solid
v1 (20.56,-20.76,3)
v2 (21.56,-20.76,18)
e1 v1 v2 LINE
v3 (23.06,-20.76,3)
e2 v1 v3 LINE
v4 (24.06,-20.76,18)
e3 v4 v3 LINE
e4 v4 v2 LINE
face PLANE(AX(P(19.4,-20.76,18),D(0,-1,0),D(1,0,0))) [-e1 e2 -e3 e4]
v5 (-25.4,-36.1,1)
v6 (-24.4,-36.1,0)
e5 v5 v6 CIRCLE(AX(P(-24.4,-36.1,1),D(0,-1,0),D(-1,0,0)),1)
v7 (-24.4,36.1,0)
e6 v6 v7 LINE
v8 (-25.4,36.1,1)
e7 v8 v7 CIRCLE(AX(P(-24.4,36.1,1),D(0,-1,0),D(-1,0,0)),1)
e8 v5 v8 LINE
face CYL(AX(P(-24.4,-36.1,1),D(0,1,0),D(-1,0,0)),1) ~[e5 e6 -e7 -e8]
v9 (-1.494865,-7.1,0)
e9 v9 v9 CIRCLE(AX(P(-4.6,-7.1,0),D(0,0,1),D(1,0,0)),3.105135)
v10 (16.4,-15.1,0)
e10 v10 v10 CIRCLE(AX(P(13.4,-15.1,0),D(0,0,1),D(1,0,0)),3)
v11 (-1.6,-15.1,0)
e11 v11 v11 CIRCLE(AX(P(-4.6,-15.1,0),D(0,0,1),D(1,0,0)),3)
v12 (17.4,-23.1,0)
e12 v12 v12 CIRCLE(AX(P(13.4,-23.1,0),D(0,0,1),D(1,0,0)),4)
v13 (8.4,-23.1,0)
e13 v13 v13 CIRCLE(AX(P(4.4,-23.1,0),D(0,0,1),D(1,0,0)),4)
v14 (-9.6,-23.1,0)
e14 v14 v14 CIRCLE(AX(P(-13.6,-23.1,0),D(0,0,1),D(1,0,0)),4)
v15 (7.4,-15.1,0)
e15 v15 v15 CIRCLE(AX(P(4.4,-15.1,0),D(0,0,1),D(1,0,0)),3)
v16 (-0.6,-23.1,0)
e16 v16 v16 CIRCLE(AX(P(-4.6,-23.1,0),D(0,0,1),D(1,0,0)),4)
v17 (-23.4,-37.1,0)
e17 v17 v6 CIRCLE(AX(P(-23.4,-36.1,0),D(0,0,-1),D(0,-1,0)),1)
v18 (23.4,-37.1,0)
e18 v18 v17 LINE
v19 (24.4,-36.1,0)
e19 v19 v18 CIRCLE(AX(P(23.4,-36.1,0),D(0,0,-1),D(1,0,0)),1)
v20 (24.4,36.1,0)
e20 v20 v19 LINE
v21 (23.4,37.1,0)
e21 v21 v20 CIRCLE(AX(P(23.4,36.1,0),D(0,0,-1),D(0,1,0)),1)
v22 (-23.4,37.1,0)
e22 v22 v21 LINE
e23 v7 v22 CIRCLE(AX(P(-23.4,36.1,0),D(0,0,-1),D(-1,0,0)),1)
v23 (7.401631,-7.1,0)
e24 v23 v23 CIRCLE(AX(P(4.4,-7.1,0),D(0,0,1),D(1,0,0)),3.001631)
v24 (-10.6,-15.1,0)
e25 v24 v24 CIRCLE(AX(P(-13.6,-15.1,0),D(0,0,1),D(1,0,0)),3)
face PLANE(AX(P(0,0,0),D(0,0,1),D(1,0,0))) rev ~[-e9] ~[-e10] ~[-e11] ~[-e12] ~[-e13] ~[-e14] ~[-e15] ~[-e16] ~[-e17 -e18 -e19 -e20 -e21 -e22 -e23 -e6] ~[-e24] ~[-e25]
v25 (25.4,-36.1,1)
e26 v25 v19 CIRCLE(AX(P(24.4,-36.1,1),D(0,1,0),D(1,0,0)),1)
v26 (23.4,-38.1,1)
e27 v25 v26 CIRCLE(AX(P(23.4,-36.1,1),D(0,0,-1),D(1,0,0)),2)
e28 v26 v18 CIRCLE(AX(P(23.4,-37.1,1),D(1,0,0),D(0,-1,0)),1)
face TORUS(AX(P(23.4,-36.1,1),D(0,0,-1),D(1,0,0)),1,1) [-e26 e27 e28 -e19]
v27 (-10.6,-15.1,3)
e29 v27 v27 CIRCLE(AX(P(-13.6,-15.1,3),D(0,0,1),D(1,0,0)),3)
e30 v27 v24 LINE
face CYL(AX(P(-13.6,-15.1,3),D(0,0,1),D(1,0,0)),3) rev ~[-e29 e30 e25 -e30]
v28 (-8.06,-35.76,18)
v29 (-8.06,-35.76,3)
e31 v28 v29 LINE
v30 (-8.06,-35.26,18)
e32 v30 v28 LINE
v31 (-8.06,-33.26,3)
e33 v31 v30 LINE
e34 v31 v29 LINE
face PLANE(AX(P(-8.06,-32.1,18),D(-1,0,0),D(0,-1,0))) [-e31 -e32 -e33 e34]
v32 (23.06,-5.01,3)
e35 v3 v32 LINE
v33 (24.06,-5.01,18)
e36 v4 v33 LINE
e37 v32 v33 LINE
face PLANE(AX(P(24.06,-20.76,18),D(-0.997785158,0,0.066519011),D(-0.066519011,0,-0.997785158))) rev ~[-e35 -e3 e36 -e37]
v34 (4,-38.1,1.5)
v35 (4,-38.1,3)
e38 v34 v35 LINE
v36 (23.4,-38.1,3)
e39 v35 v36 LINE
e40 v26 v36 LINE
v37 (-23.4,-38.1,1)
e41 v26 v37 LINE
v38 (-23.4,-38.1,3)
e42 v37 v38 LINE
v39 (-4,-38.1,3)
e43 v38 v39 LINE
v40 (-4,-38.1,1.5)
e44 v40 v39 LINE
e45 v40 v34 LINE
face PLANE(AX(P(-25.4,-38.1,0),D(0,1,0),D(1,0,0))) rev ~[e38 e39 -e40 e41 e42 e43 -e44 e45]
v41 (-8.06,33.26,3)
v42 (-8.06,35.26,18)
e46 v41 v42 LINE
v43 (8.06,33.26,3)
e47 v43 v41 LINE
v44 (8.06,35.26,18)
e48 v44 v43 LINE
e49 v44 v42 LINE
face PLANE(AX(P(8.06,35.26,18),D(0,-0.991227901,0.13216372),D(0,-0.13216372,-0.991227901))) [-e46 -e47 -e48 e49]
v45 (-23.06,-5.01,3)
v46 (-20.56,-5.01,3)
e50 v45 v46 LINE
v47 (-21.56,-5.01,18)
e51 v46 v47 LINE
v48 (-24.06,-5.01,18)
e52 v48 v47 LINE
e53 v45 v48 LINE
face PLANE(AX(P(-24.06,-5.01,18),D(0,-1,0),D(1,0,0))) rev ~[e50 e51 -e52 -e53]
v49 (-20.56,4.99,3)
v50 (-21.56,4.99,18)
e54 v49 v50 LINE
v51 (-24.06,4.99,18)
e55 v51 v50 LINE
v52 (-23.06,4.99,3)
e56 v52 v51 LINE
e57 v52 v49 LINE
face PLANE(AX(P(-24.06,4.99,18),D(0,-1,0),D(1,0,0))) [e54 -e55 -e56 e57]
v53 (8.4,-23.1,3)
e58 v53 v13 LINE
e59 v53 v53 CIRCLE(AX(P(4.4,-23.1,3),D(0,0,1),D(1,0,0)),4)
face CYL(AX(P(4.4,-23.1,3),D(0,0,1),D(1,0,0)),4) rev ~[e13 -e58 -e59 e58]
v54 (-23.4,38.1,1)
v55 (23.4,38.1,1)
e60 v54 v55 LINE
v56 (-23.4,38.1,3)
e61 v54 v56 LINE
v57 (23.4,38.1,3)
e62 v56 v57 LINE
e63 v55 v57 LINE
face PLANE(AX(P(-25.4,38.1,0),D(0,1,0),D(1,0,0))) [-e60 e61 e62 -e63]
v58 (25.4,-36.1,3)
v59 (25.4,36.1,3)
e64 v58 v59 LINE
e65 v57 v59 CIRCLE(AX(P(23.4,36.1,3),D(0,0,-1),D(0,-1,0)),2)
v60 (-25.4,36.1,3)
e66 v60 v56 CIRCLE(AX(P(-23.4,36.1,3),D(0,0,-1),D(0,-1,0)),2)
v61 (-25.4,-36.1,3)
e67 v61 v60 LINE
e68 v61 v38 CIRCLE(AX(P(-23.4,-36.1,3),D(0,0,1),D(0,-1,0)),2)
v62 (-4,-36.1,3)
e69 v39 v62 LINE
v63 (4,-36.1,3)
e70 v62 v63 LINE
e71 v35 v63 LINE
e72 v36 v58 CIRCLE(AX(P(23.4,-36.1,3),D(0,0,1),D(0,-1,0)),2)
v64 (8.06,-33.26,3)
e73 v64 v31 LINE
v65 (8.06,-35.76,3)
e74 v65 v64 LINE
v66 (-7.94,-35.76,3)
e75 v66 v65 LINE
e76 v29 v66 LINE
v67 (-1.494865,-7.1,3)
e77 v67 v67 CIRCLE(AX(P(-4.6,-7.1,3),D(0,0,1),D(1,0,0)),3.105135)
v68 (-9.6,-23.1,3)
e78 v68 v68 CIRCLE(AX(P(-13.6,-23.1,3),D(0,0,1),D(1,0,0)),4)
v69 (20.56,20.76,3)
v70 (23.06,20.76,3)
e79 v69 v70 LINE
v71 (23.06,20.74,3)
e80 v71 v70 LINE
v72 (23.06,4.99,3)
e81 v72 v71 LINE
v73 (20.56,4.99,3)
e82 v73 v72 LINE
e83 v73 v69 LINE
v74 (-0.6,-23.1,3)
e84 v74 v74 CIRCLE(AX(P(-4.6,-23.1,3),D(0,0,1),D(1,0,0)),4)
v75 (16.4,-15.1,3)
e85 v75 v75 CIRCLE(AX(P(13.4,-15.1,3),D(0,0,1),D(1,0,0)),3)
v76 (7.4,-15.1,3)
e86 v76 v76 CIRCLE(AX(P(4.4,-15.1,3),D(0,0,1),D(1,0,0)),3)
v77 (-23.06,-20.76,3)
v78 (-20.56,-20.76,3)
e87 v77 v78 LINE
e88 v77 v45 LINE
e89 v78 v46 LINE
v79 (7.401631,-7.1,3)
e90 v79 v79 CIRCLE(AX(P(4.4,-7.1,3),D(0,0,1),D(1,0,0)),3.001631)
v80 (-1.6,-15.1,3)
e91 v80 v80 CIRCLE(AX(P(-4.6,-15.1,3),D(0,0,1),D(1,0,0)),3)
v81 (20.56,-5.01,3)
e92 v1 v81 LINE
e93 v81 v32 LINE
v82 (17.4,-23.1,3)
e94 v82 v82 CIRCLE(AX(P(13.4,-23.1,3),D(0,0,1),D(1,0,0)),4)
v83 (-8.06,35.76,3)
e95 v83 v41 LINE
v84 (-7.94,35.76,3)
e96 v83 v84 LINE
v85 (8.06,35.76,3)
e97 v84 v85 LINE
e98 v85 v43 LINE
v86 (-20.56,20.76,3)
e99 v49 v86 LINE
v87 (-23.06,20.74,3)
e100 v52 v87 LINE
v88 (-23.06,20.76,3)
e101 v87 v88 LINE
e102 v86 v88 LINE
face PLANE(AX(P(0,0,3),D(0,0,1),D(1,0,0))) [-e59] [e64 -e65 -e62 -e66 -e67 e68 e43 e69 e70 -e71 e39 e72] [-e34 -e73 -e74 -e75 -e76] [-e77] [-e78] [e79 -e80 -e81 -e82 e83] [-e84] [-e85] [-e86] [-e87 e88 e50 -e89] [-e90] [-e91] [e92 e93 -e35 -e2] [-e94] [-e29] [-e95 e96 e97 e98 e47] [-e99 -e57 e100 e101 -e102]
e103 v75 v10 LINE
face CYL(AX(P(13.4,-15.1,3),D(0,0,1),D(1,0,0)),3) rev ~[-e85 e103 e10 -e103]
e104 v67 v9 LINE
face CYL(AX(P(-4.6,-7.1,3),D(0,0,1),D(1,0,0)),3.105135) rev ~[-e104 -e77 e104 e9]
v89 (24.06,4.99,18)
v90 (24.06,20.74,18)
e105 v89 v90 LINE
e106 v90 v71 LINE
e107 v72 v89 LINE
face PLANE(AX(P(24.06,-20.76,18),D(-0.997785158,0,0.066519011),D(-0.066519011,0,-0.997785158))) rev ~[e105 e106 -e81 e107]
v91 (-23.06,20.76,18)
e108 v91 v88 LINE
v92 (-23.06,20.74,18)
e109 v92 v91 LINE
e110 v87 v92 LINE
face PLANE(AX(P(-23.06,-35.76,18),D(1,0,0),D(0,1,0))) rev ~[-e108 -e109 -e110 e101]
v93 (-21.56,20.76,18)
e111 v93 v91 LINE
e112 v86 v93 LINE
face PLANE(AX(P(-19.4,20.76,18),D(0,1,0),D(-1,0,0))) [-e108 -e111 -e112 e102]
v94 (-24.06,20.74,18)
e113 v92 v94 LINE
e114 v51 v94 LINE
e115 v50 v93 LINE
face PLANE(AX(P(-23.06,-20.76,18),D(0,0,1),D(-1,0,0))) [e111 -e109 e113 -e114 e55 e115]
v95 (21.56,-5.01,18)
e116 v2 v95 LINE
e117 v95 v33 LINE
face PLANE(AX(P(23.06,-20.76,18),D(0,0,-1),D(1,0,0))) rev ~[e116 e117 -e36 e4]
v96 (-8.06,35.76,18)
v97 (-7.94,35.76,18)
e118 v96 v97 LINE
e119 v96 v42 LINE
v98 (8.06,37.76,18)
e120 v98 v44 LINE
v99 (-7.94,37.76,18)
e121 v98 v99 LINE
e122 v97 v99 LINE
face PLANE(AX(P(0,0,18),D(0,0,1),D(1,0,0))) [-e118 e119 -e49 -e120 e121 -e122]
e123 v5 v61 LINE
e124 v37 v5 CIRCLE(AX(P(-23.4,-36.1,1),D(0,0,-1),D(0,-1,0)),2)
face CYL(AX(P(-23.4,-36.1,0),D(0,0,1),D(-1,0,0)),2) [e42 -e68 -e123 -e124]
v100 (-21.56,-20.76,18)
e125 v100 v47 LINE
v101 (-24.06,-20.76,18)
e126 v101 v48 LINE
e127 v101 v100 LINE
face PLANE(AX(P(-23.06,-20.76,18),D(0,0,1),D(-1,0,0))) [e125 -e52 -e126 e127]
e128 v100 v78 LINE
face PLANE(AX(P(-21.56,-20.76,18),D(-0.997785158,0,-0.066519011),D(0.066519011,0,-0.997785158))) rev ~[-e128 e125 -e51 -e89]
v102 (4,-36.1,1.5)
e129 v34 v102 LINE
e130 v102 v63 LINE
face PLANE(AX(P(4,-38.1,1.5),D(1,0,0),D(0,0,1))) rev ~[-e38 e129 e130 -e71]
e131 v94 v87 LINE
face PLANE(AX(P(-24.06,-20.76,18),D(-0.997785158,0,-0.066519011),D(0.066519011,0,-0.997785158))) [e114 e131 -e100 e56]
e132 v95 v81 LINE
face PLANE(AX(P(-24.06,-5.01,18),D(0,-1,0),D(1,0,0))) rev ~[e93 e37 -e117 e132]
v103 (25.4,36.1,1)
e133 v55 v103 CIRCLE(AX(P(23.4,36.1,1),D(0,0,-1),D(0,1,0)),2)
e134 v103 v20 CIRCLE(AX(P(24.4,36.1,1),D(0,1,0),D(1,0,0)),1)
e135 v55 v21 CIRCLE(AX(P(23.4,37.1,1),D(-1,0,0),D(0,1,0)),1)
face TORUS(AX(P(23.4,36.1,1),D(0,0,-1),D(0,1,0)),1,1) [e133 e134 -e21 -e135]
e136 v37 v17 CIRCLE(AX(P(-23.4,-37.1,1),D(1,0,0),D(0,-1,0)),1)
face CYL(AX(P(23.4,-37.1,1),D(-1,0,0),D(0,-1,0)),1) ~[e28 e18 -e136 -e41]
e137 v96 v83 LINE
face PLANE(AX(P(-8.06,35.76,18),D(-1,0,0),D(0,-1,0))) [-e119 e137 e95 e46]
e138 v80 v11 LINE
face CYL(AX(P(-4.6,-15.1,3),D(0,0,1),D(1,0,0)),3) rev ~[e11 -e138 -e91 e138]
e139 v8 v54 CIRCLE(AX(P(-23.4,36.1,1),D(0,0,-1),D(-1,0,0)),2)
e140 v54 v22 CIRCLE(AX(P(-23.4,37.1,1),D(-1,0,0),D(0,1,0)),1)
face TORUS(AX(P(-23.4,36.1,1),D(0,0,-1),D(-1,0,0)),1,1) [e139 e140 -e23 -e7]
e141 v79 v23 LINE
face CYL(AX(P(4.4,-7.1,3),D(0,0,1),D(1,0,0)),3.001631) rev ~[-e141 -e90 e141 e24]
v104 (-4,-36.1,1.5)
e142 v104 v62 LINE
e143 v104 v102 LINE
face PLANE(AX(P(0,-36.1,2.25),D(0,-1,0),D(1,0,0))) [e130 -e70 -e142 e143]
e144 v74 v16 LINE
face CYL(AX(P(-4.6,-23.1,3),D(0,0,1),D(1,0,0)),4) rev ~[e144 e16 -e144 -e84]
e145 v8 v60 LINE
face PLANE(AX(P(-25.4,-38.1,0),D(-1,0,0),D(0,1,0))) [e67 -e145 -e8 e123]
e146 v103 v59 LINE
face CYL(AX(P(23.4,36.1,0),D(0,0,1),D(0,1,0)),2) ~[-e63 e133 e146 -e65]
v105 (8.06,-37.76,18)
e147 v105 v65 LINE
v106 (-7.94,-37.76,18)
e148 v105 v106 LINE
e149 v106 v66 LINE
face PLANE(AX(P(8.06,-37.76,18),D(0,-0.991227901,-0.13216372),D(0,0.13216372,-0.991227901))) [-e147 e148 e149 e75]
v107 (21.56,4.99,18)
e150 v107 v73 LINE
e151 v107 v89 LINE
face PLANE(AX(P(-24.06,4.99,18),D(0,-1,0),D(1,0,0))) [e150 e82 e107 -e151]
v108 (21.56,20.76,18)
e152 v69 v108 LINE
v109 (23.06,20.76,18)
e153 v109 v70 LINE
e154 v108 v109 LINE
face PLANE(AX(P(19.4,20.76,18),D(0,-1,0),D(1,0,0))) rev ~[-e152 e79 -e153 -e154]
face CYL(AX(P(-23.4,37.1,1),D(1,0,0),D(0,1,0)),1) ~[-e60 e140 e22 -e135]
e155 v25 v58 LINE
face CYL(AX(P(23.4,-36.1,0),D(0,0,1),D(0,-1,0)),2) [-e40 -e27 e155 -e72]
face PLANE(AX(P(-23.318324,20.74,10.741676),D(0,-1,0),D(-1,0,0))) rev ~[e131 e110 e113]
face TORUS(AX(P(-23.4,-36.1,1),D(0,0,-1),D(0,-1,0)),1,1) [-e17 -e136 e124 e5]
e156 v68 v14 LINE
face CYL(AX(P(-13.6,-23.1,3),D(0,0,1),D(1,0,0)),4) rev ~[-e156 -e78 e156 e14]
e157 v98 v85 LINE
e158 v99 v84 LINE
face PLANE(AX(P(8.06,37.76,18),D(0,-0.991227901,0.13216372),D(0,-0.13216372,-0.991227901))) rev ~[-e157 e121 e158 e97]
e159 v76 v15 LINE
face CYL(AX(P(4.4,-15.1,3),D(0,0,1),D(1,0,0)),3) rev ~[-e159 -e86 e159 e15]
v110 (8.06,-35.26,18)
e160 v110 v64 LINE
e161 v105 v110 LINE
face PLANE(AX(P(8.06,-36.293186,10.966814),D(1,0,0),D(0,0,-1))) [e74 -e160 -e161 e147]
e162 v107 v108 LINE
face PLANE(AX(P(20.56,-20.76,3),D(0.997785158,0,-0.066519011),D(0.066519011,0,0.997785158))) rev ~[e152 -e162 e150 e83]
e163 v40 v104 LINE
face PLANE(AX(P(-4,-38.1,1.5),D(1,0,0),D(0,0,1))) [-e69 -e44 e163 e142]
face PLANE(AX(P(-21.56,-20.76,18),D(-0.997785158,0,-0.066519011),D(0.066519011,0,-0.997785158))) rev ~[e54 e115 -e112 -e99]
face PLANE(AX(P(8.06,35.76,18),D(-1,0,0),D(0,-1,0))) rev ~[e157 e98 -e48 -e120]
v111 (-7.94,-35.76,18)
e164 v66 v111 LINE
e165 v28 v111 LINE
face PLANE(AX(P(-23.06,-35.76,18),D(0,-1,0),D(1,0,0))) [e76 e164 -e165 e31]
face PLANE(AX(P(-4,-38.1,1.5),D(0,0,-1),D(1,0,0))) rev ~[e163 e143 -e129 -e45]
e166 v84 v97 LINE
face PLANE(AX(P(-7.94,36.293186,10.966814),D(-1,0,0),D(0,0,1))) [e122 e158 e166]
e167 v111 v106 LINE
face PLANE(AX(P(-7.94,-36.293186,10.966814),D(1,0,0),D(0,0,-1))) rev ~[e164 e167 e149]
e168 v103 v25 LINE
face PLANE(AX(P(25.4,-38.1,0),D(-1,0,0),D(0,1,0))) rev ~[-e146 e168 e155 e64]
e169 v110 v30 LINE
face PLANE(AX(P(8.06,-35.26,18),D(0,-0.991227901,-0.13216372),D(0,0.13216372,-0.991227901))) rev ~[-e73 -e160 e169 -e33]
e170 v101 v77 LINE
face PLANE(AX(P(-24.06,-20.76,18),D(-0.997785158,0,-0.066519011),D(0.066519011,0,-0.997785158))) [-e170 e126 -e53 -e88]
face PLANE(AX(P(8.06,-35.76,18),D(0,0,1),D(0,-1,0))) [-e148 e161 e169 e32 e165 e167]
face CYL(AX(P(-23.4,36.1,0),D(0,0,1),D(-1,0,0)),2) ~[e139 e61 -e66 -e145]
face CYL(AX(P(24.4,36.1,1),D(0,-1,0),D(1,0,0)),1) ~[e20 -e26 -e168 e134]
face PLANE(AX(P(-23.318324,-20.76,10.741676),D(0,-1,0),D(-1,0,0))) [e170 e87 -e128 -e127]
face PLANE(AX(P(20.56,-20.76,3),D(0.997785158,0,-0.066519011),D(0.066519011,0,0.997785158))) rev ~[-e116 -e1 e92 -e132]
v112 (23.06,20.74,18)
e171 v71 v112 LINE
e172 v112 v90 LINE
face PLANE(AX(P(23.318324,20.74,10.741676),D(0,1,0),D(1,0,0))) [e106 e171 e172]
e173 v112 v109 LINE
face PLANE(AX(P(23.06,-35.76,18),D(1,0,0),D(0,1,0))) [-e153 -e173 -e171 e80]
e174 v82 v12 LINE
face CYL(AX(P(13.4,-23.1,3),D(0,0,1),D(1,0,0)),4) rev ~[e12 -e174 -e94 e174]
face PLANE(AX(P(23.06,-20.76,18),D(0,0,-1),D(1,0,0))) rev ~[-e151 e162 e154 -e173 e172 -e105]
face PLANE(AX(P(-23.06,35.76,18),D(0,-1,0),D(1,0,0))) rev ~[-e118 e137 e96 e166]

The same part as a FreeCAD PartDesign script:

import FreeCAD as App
import Part
import Sketcher

V = App.Vector
Q = App.Units.Quantity


def edges_at(feature, points):
    """Names of the edges that pass closest to the given points."""
    edges = feature.Shape.Edges
    near = lambda p: min(range(len(edges)), key=lambda i: edges[i].distToShape(Part.Vertex(*p))[0])
    return sorted({f"Edge{near(p) + 1}" for p in points})

doc = App.newDocument("Part")
body = doc.addObject("PartDesign::Body", "Body")

sketch1 = body.newObject("Sketcher::SketchObject", "Sketch")
sketch1.AttachmentSupport = (doc.getObject("XY_Plane"), [""])
sketch1.MapMode = "FlatFace"
sketch1.addGeometry([
    Part.LineSegment(V(-25, 38, 0), V(-25, -38, 0)),
    Part.LineSegment(V(-25, -38, 0), V(25, -38, 0)),
    Part.LineSegment(V(25, -38, 0), V(25, 38, 0)),
    Part.LineSegment(V(25, 38, 0), V(-25, 38, 0)),
], False)
sketch1.addConstraint([
    Sketcher.Constraint("Coincident", 0, 2, 1, 1),
    Sketcher.Constraint("Coincident", 1, 2, 2, 1),
    Sketcher.Constraint("Coincident", 2, 2, 3, 1),
    Sketcher.Constraint("Coincident", 3, 2, 0, 1),
    Sketcher.Constraint("Vertical", 0),
    Sketcher.Constraint("Horizontal", 1),
    Sketcher.Constraint("Vertical", 2),
    Sketcher.Constraint("Horizontal", 3),
    Sketcher.Constraint("Symmetric", 0, 2, 2, 2, -1, 1),
    Sketcher.Constraint("DistanceX", 1, 1, 1, 2, Q("50.8 mm")),
    Sketcher.Constraint("DistanceY", 0, 2, 0, 1, Q("76.2 mm")),
])
pad1 = body.newObject("PartDesign::Pad", "Pad")
pad1.Profile = sketch1
pad1.Length = 18

sketch2 = body.newObject("Sketcher::SketchObject", "Sketch001")
sketch2.AttachmentSupport = (doc.getObject("XY_Plane"), [""])
sketch2.MapMode = "FlatFace"
sketch2.AttachmentOffset = App.Placement(V(0, 0, 18), App.Rotation())
sketch2.addGeometry([
    Part.LineSegment(V(-25, 38, 0), V(-25, -38, 0)),
    Part.LineSegment(V(-25, -38, 0), V(25, -38, 0)),
    Part.LineSegment(V(25, -38, 0), V(25, 38, 0)),
    Part.LineSegment(V(25, 38, 0), V(-25, 38, 0)),
    Part.LineSegment(V(23, -36, 0), V(-23, -36, 0)),
    Part.LineSegment(V(-23, -36, 0), V(-23, 36, 0)),
    Part.LineSegment(V(-23, 36, 0), V(23, 36, 0)),
    Part.LineSegment(V(23, 36, 0), V(23, -36, 0)),
    Part.LineSegment(V(-19, 32, 0), V(-19, -32, 0)),
    Part.LineSegment(V(-19, -32, 0), V(19, -32, 0)),
    Part.LineSegment(V(19, -32, 0), V(19, 32, 0)),
    Part.LineSegment(V(19, 32, 0), V(-19, 32, 0)),
], False)
sketch2.addConstraint([
    Sketcher.Constraint("Coincident", 0, 2, 1, 1),
    Sketcher.Constraint("Coincident", 1, 2, 2, 1),
    Sketcher.Constraint("Coincident", 2, 2, 3, 1),
    Sketcher.Constraint("Coincident", 3, 2, 0, 1),
    Sketcher.Constraint("Coincident", 4, 2, 5, 1),
    Sketcher.Constraint("Coincident", 5, 2, 6, 1),
    Sketcher.Constraint("Coincident", 6, 2, 7, 1),
    Sketcher.Constraint("Coincident", 7, 2, 4, 1),
    Sketcher.Constraint("Coincident", 8, 2, 9, 1),
    Sketcher.Constraint("Coincident", 9, 2, 10, 1),
    Sketcher.Constraint("Coincident", 10, 2, 11, 1),
    Sketcher.Constraint("Coincident", 11, 2, 8, 1),
    Sketcher.Constraint("Vertical", 0),
    Sketcher.Constraint("Horizontal", 1),
    Sketcher.Constraint("Vertical", 2),
    Sketcher.Constraint("Horizontal", 3),
    Sketcher.Constraint("Horizontal", 4),
    Sketcher.Constraint("Vertical", 5),
    Sketcher.Constraint("Horizontal", 6),
    Sketcher.Constraint("Vertical", 7),
    Sketcher.Constraint("Vertical", 8),
    Sketcher.Constraint("Horizontal", 9),
    Sketcher.Constraint("Vertical", 10),
    Sketcher.Constraint("Horizontal", 11),
    Sketcher.Constraint("Symmetric", 0, 2, 2, 2, -1, 1),
    Sketcher.Constraint("Symmetric", 4, 2, 6, 2, -1, 1),
    Sketcher.Constraint("Symmetric", 8, 2, 10, 2, -1, 1),
    Sketcher.Constraint("DistanceX", 1, 1, 1, 2, Q("50.8 mm")),
    Sketcher.Constraint("DistanceX", 9, 1, 9, 2, Q("38.8 mm")),
    Sketcher.Constraint("DistanceY", 0, 2, 0, 1, Q("76.2 mm")),
    Sketcher.Constraint("DistanceY", 8, 2, 8, 1, Q("64.2 mm")),
    Sketcher.Constraint("DistanceX", 4, 2, 4, 1, Q("46.12 mm")),
    Sketcher.Constraint("DistanceY", 5, 1, 5, 2, Q("71.52 mm")),
])
pocket1 = body.newObject("PartDesign::Pocket", "Pocket")
pocket1.Profile = sketch2
pocket1.Length = 15

sketch3 = body.newObject("Sketcher::SketchObject", "Sketch002")
sketch3.AttachmentSupport = (doc.getObject("XY_Plane"), [""])
sketch3.MapMode = "FlatFace"
sketch3.AttachmentOffset = App.Placement(V(0, 0, 18), App.Rotation())
sketch3.addGeometry([
    Part.LineSegment(V(-8.1, 35.8, 0), V(-23.1, 35.8, 0)),
    Part.LineSegment(V(-23.1, 35.8, 0), V(-23.1, 20.8, 0)),
    Part.LineSegment(V(-23.1, 20.8, 0), V(-19.4, 20.8, 0)),
    Part.LineSegment(V(-19.4, 20.8, 0), V(-19.4, 32.1, 0)),
    Part.LineSegment(V(-19.4, 32.1, 0), V(-8.1, 32.1, 0)),
    Part.LineSegment(V(-8.1, 32.1, 0), V(-8.1, 35.8, 0)),
    Part.LineSegment(V(23.1, 35.8, 0), V(8.1, 35.8, 0)),
    Part.LineSegment(V(8.1, 35.8, 0), V(8.1, 32.1, 0)),
    Part.LineSegment(V(8.1, 32.1, 0), V(19.4, 32.1, 0)),
    Part.LineSegment(V(19.4, 32.1, 0), V(19.4, 20.8, 0)),
    Part.LineSegment(V(19.4, 20.8, 0), V(23.1, 20.8, 0)),
    Part.LineSegment(V(23.1, 20.8, 0), V(23.1, 35.8, 0)),
    Part.LineSegment(V(-23.1, -20.8, 0), V(-23.1, -35.8, 0)),
    Part.LineSegment(V(-23.1, -35.8, 0), V(-8.1, -35.8, 0)),
    Part.LineSegment(V(-8.1, -35.8, 0), V(-8.1, -32.1, 0)),
    Part.LineSegment(V(-8.1, -32.1, 0), V(-19.4, -32.1, 0)),
    Part.LineSegment(V(-19.4, -32.1, 0), V(-19.4, -20.8, 0)),
    Part.LineSegment(V(-19.4, -20.8, 0), V(-23.1, -20.8, 0)),
    Part.LineSegment(V(8.1, -35.8, 0), V(23.1, -35.8, 0)),
    Part.LineSegment(V(23.1, -35.8, 0), V(23.1, -20.8, 0)),
    Part.LineSegment(V(23.1, -20.8, 0), V(19.4, -20.8, 0)),
    Part.LineSegment(V(19.4, -20.8, 0), V(19.4, -32.1, 0)),
    Part.LineSegment(V(19.4, -32.1, 0), V(8.1, -32.1, 0)),
    Part.LineSegment(V(8.1, -32.1, 0), V(8.1, -35.8, 0)),
], False)
sketch3.addConstraint([
    Sketcher.Constraint("Coincident", 0, 2, 1, 1),
    Sketcher.Constraint("Coincident", 1, 2, 2, 1),
    Sketcher.Constraint("Coincident", 2, 2, 3, 1),
    Sketcher.Constraint("Coincident", 3, 2, 4, 1),
    Sketcher.Constraint("Coincident", 4, 2, 5, 1),
    Sketcher.Constraint("Coincident", 5, 2, 0, 1),
    Sketcher.Constraint("Coincident", 6, 2, 7, 1),
    Sketcher.Constraint("Coincident", 7, 2, 8, 1),
    Sketcher.Constraint("Coincident", 8, 2, 9, 1),
    Sketcher.Constraint("Coincident", 9, 2, 10, 1),
    Sketcher.Constraint("Coincident", 10, 2, 11, 1),
    Sketcher.Constraint("Coincident", 11, 2, 6, 1),
    Sketcher.Constraint("Coincident", 12, 2, 13, 1),
    Sketcher.Constraint("Coincident", 13, 2, 14, 1),
    Sketcher.Constraint("Coincident", 14, 2, 15, 1),
    Sketcher.Constraint("Coincident", 15, 2, 16, 1),
    Sketcher.Constraint("Coincident", 16, 2, 17, 1),
    Sketcher.Constraint("Coincident", 17, 2, 12, 1),
    Sketcher.Constraint("Coincident", 18, 2, 19, 1),
    Sketcher.Constraint("Coincident", 19, 2, 20, 1),
    Sketcher.Constraint("Coincident", 20, 2, 21, 1),
    Sketcher.Constraint("Coincident", 21, 2, 22, 1),
    Sketcher.Constraint("Coincident", 22, 2, 23, 1),
    Sketcher.Constraint("Coincident", 23, 2, 18, 1),
    Sketcher.Constraint("Horizontal", 0),
    Sketcher.Constraint("Vertical", 1),
    Sketcher.Constraint("Horizontal", 2),
    Sketcher.Constraint("Vertical", 3),
    Sketcher.Constraint("Horizontal", 4),
    Sketcher.Constraint("Vertical", 5),
    Sketcher.Constraint("Horizontal", 6),
    Sketcher.Constraint("Vertical", 7),
    Sketcher.Constraint("Horizontal", 8),
    Sketcher.Constraint("Vertical", 9),
    Sketcher.Constraint("Horizontal", 10),
    Sketcher.Constraint("Vertical", 11),
    Sketcher.Constraint("Vertical", 12),
    Sketcher.Constraint("Horizontal", 13),
    Sketcher.Constraint("Vertical", 14),
    Sketcher.Constraint("Horizontal", 15),
    Sketcher.Constraint("Vertical", 16),
    Sketcher.Constraint("Horizontal", 17),
    Sketcher.Constraint("Horizontal", 18),
    Sketcher.Constraint("Vertical", 19),
    Sketcher.Constraint("Horizontal", 20),
    Sketcher.Constraint("Vertical", 21),
    Sketcher.Constraint("Horizontal", 22),
    Sketcher.Constraint("Vertical", 23),
    Sketcher.Constraint("Symmetric", 11, 2, 12, 2, -1, 1),
    Sketcher.Constraint("Symmetric", 7, 2, 14, 2, -1, 1),
    Sketcher.Constraint("Symmetric", 9, 2, 16, 2, -1, 1),
    Sketcher.Constraint("Symmetric", 0, 2, 18, 2, -1, 1),
    Sketcher.Constraint("Symmetric", 2, 2, 20, 2, -1, 1),
    Sketcher.Constraint("Symmetric", 4, 2, 22, 2, -1, 1),
    Sketcher.Constraint("Symmetric", 5, 2, 6, 2, -2),
    Sketcher.Constraint("Symmetric", 3, 2, 8, 2, -2),
    Sketcher.Constraint("Symmetric", 1, 2, 10, 2, -2),
    Sketcher.Constraint("Equal", 18, 1),
    Sketcher.Constraint("Equal", 22, 3),
    Sketcher.Constraint("DistanceX", 0, 2, 0, 1, Q("15 mm")),
    Sketcher.Constraint("DistanceX", 2, 1, 2, 2, Q("3.66 mm")),
    Sketcher.Constraint("DistanceX", 2, 2, -1, 1, Q("19.4 mm")),
    Sketcher.Constraint("DistanceY", -1, 1, 3, 2, Q("32.1 mm")),
])
pocket2 = body.newObject("PartDesign::Pocket", "Pocket001")
pocket2.Profile = sketch3
pocket2.Length = 15

sketch4 = body.newObject("Sketcher::SketchObject", "Sketch003")
sketch4.AttachmentSupport = (doc.getObject("XZ_Plane"), [""])
sketch4.MapMode = "FlatFace"
sketch4.AttachmentOffset = App.Placement(V(0, 0, 20.76), App.Rotation())
sketch4.addGeometry([
    Part.LineSegment(V(-23.1, 18, 0), V(-24.1, 18, 0)),
    Part.LineSegment(V(-24.1, 18, 0), V(-23.1, 3, 0)),
    Part.LineSegment(V(-23.1, 3, 0), V(-23.1, 18, 0)),
    Part.LineSegment(V(24.1, 18, 0), V(23.1, 18, 0)),
    Part.LineSegment(V(23.1, 18, 0), V(23.1, 3, 0)),
    Part.LineSegment(V(23.1, 3, 0), V(24.1, 18, 0)),
], False)
sketch4.addConstraint([
    Sketcher.Constraint("Coincident", 0, 2, 1, 1),
    Sketcher.Constraint("Coincident", 1, 2, 2, 1),
    Sketcher.Constraint("Coincident", 2, 2, 0, 1),
    Sketcher.Constraint("Coincident", 3, 2, 4, 1),
    Sketcher.Constraint("Coincident", 4, 2, 5, 1),
    Sketcher.Constraint("Coincident", 5, 2, 3, 1),
    Sketcher.Constraint("Horizontal", 0),
    Sketcher.Constraint("Vertical", 2),
    Sketcher.Constraint("Horizontal", 3),
    Sketcher.Constraint("Vertical", 4),
    Sketcher.Constraint("Symmetric", 2, 2, 3, 2, -2),
    Sketcher.Constraint("Horizontal", 1, 2, 4, 2),
    Sketcher.Constraint("Equal", 0, 3),
    Sketcher.Constraint("DistanceX", 0, 2, 0, 1, Q("1 mm")),
    Sketcher.Constraint("DistanceY", 2, 1, 2, 2, Q("15 mm")),
    Sketcher.Constraint("DistanceY", -1, 1, 0, 2, Q("18 mm")),
    Sketcher.Constraint("DistanceX", 0, 2, -1, 1, Q("24.06 mm")),
])
pad2 = body.newObject("PartDesign::Pad", "Pad001")
pad2.Profile = sketch4
pad2.Length = 41.5
pad2.Reversed = True

sketch5 = body.newObject("Sketcher::SketchObject", "Sketch004")
sketch5.AttachmentSupport = (doc.getObject("XZ_Plane"), [""])
sketch5.MapMode = "FlatFace"
sketch5.AttachmentOffset = App.Placement(V(0, 0, 20.76), App.Rotation())
sketch5.addGeometry([
    Part.LineSegment(V(-19.4, 18, 0), V(-21.6, 18, 0)),
    Part.LineSegment(V(-21.6, 18, 0), V(-20.6, 3, 0)),
    Part.LineSegment(V(-20.6, 3, 0), V(-19.4, 3, 0)),
    Part.LineSegment(V(-19.4, 3, 0), V(-19.4, 18, 0)),
], False)
sketch5.addConstraint([
    Sketcher.Constraint("Coincident", 0, 2, 1, 1),
    Sketcher.Constraint("Coincident", 1, 2, 2, 1),
    Sketcher.Constraint("Coincident", 2, 2, 3, 1),
    Sketcher.Constraint("Coincident", 3, 2, 0, 1),
    Sketcher.Constraint("Horizontal", 0),
    Sketcher.Constraint("Horizontal", 2),
    Sketcher.Constraint("Vertical", 3),
    Sketcher.Constraint("DistanceY", 3, 1, 3, 2, Q("15 mm")),
    Sketcher.Constraint("DistanceY", -1, 1, 0, 2, Q("18 mm")),
    Sketcher.Constraint("DistanceX", 0, 2, 1, 2, Q("1 mm")),
    Sketcher.Constraint("DistanceX", 0, 2, 0, 1, Q("2.16 mm")),
    Sketcher.Constraint("DistanceX", 2, 2, -1, 1, Q("19.4 mm")),
])
pocket3 = body.newObject("PartDesign::Pocket", "Pocket002")
pocket3.Profile = sketch5
pocket3.Length = 51.5

sketch6 = body.newObject("Sketcher::SketchObject", "Sketch005")
sketch6.AttachmentSupport = (doc.getObject("XZ_Plane"), [""])
sketch6.MapMode = "FlatFace"
sketch6.AttachmentOffset = App.Placement(V(0, 0, 20.76), App.Rotation())
sketch6.addGeometry([
    Part.LineSegment(V(19.4, 18, 0), V(19.4, 3, 0)),
    Part.LineSegment(V(19.4, 3, 0), V(20.6, 3, 0)),
    Part.LineSegment(V(20.6, 3, 0), V(21.6, 18, 0)),
    Part.LineSegment(V(21.6, 18, 0), V(19.4, 18, 0)),
], False)
sketch6.addConstraint([
    Sketcher.Constraint("Coincident", 0, 2, 1, 1),
    Sketcher.Constraint("Coincident", 1, 2, 2, 1),
    Sketcher.Constraint("Coincident", 2, 2, 3, 1),
    Sketcher.Constraint("Coincident", 3, 2, 0, 1),
    Sketcher.Constraint("Vertical", 0),
    Sketcher.Constraint("Horizontal", 1),
    Sketcher.Constraint("Horizontal", 3),
    Sketcher.Constraint("DistanceY", 0, 2, 0, 1, Q("15 mm")),
    Sketcher.Constraint("DistanceY", -1, 1, 0, 2, Q("3 mm")),
    Sketcher.Constraint("DistanceX", 1, 2, 2, 2, Q("1 mm")),
    Sketcher.Constraint("DistanceX", 1, 1, 1, 2, Q("1.16 mm")),
    Sketcher.Constraint("DistanceX", -1, 1, 0, 2, Q("19.4 mm")),
])
pocket4 = body.newObject("PartDesign::Pocket", "Pocket003")
pocket4.Profile = sketch6
pocket4.Length = 51.5

sketch7 = body.newObject("Sketcher::SketchObject", "Sketch006")
sketch7.AttachmentSupport = (doc.getObject("YZ_Plane"), [""])
sketch7.MapMode = "FlatFace"
sketch7.AttachmentOffset = App.Placement(V(0, 0, 8.06), App.Rotation())
sketch7.addGeometry([
    Part.LineSegment(V(-35.8, 18, 0), V(-37.8, 18, 0)),
    Part.LineSegment(V(-37.8, 18, 0), V(-35.8, 3, 0)),
    Part.LineSegment(V(-35.8, 3, 0), V(-35.8, 18, 0)),
    Part.LineSegment(V(37.8, 18, 0), V(35.8, 18, 0)),
    Part.LineSegment(V(35.8, 18, 0), V(35.8, 3, 0)),
    Part.LineSegment(V(35.8, 3, 0), V(37.8, 18, 0)),
], False)
sketch7.addConstraint([
    Sketcher.Constraint("Coincident", 0, 2, 1, 1),
    Sketcher.Constraint("Coincident", 1, 2, 2, 1),
    Sketcher.Constraint("Coincident", 2, 2, 0, 1),
    Sketcher.Constraint("Coincident", 3, 2, 4, 1),
    Sketcher.Constraint("Coincident", 4, 2, 5, 1),
    Sketcher.Constraint("Coincident", 5, 2, 3, 1),
    Sketcher.Constraint("Horizontal", 0),
    Sketcher.Constraint("Vertical", 2),
    Sketcher.Constraint("Horizontal", 3),
    Sketcher.Constraint("Vertical", 4),
    Sketcher.Constraint("Symmetric", 2, 2, 3, 2, -2),
    Sketcher.Constraint("Horizontal", 1, 2, 4, 2),
    Sketcher.Constraint("Equal", 0, 3),
    Sketcher.Constraint("DistanceX", 0, 2, 0, 1, Q("2 mm")),
    Sketcher.Constraint("DistanceY", 2, 1, 2, 2, Q("15 mm")),
    Sketcher.Constraint("DistanceY", -1, 1, 0, 2, Q("18 mm")),
    Sketcher.Constraint("DistanceX", 0, 2, -1, 1, Q("37.76 mm")),
])
pad3 = body.newObject("PartDesign::Pad", "Pad002")
pad3.Profile = sketch7
pad3.Length = 16
pad3.Reversed = True

sketch8 = body.newObject("Sketcher::SketchObject", "Sketch007")
sketch8.AttachmentSupport = (doc.getObject("YZ_Plane"), [""])
sketch8.MapMode = "FlatFace"
sketch8.AttachmentOffset = App.Placement(V(0, 0, 8.06), App.Rotation())
sketch8.addGeometry([
    Part.LineSegment(V(-32.1, 3, 0), V(-32.1, 18, 0)),
    Part.LineSegment(V(-32.1, 18, 0), V(-35.3, 18, 0)),
    Part.LineSegment(V(-35.3, 18, 0), V(-33.3, 3, 0)),
    Part.LineSegment(V(-33.3, 3, 0), V(-32.1, 3, 0)),
    Part.LineSegment(V(35.3, 18, 0), V(32.1, 18, 0)),
    Part.LineSegment(V(32.1, 18, 0), V(32.1, 3, 0)),
    Part.LineSegment(V(32.1, 3, 0), V(33.3, 3, 0)),
    Part.LineSegment(V(33.3, 3, 0), V(35.3, 18, 0)),
], False)
sketch8.addConstraint([
    Sketcher.Constraint("Coincident", 0, 2, 1, 1),
    Sketcher.Constraint("Coincident", 1, 2, 2, 1),
    Sketcher.Constraint("Coincident", 2, 2, 3, 1),
    Sketcher.Constraint("Coincident", 3, 2, 0, 1),
    Sketcher.Constraint("Coincident", 4, 2, 5, 1),
    Sketcher.Constraint("Coincident", 5, 2, 6, 1),
    Sketcher.Constraint("Coincident", 6, 2, 7, 1),
    Sketcher.Constraint("Coincident", 7, 2, 4, 1),
    Sketcher.Constraint("Vertical", 0),
    Sketcher.Constraint("Horizontal", 1),
    Sketcher.Constraint("Horizontal", 3),
    Sketcher.Constraint("Horizontal", 4),
    Sketcher.Constraint("Vertical", 5),
    Sketcher.Constraint("Horizontal", 6),
    Sketcher.Constraint("Symmetric", 0, 2, 4, 2, -2),
    Sketcher.Constraint("Symmetric", 2, 2, 6, 2, -2),
    Sketcher.Constraint("Equal", 1, 4),
    Sketcher.Constraint("DistanceY", 0, 1, 0, 2, Q("15 mm")),
    Sketcher.Constraint("DistanceY", -1, 1, 0, 2, Q("18 mm")),
    Sketcher.Constraint("DistanceX", 1, 2, 2, 2, Q("2 mm")),
    Sketcher.Constraint("DistanceX", 1, 2, 1, 1, Q("3.16 mm")),
    Sketcher.Constraint("DistanceX", 0, 2, -1, 1, Q("32.1 mm")),
])
pocket5 = body.newObject("PartDesign::Pocket", "Pocket004")
pocket5.Profile = sketch8
pocket5.Length = 16.5
doc.recompute()

fillet = body.newObject("PartDesign::Fillet", "Fillet")
fillet.Base = (pocket5, edges_at(pocket5, [
    (-25.4, 38.1, 1.5),
    (25.4, 38.1, 1.5),
    (25.4, -38.1, 1.5),
    (-25.4, -38.1, 1.5),
]))
fillet.Radius = 2
doc.recompute()

fillet2 = body.newObject("PartDesign::Fillet", "Fillet001")
fillet2.Base = (fillet, edges_at(fillet, [
    (0, 38.1, 0),
    (-25.4, 0, 0),
    (25.4, 0, 0),
    (0, -38.1, 0),
    (24.814, -37.514, 0),
    (-24.814, -37.514, 0),
    (-24.814, 37.514, 0),
    (24.814, 37.514, 0),
]))
fillet2.Radius = 1

sketch9 = body.newObject("Sketcher::SketchObject", "Sketch008")
sketch9.AttachmentSupport = (doc.getObject("XY_Plane"), [""])
sketch9.MapMode = "FlatFace"
sketch9.AttachmentOffset = App.Placement(V(0, 0, 18), App.Rotation())
sketch9.addGeometry([
    Part.LineSegment(V(-24, 5, 0), V(-24, -5, 0)),
    Part.LineSegment(V(-24, -5, 0), V(24, -5, 0)),
    Part.LineSegment(V(24, -5, 0), V(24, 5, 0)),
    Part.LineSegment(V(24, 5, 0), V(-24, 5, 0)),
], False)
sketch9.addConstraint([
    Sketcher.Constraint("Coincident", 0, 2, 1, 1),
    Sketcher.Constraint("Coincident", 1, 2, 2, 1),
    Sketcher.Constraint("Coincident", 2, 2, 3, 1),
    Sketcher.Constraint("Coincident", 3, 2, 0, 1),
    Sketcher.Constraint("Vertical", 0),
    Sketcher.Constraint("Horizontal", 1),
    Sketcher.Constraint("Vertical", 2),
    Sketcher.Constraint("Horizontal", 3),
    Sketcher.Constraint("DistanceY", 0, 2, 0, 1, Q("10 mm")),
    Sketcher.Constraint("DistanceX", 1, 1, 1, 2, Q("48.12 mm")),
    Sketcher.Constraint("DistanceX", 0, 2, -1, 1, Q("24.06 mm")),
    Sketcher.Constraint("DistanceY", 0, 2, -1, 1, Q("5.01 mm")),
])
pocket6 = body.newObject("PartDesign::Pocket", "Pocket005")
pocket6.Profile = sketch9
pocket6.Length = 15

sketch10 = body.newObject("Sketcher::SketchObject", "Sketch009")
sketch10.AttachmentSupport = (doc.getObject("XZ_Plane"), [""])
sketch10.MapMode = "FlatFace"
sketch10.AttachmentOffset = App.Placement(V(0, 0, 38.1), App.Rotation())
sketch10.addGeometry([
    Part.LineSegment(V(-4, 3, 0), V(-4, 1.5, 0)),
    Part.LineSegment(V(-4, 1.5, 0), V(4, 1.5, 0)),
    Part.LineSegment(V(4, 1.5, 0), V(4, 3, 0)),
    Part.LineSegment(V(4, 3, 0), V(-4, 3, 0)),
], False)
sketch10.addConstraint([
    Sketcher.Constraint("Coincident", 0, 2, 1, 1),
    Sketcher.Constraint("Coincident", 1, 2, 2, 1),
    Sketcher.Constraint("Coincident", 2, 2, 3, 1),
    Sketcher.Constraint("Coincident", 3, 2, 0, 1),
    Sketcher.Constraint("Vertical", 0),
    Sketcher.Constraint("Horizontal", 1),
    Sketcher.Constraint("Vertical", 2),
    Sketcher.Constraint("Horizontal", 3),
    Sketcher.Constraint("DistanceX", 1, 1, 1, 2, Q("8 mm")),
    Sketcher.Constraint("DistanceY", 0, 2, 0, 1, Q("1.5 mm")),
    Sketcher.Constraint("DistanceX", 0, 2, -1, 1, Q("4 mm")),
    Sketcher.Constraint("DistanceY", -1, 1, 2, 2, Q("3 mm")),
])
pocket7 = body.newObject("PartDesign::Pocket", "Pocket006")
pocket7.Profile = sketch10
pocket7.Length = 2

sketch11 = body.newObject("Sketcher::SketchObject", "Sketch010")
sketch11.AttachmentSupport = (doc.getObject("XY_Plane"), [""])
sketch11.MapMode = "FlatFace"
sketch11.AttachmentOffset = App.Placement(V(0, 0, 3), App.Rotation())
sketch11.addGeometry([
    Part.Circle(V(13.4, -23.1, 0), V(0, 0, 1), 4),
    Part.Circle(V(13.4, -15.1, 0), V(0, 0, 1), 3),
    Part.Circle(V(4.4, -23.1, 0), V(0, 0, 1), 4),
    Part.Circle(V(-4.6, -23.1, 0), V(0, 0, 1), 4),
    Part.Circle(V(-13.6, -23.1, 0), V(0, 0, 1), 4),
    Part.Circle(V(4.4, -15.1, 0), V(0, 0, 1), 3),
    Part.Circle(V(-4.6, -15.1, 0), V(0, 0, 1), 3),
    Part.Circle(V(-13.6, -15.1, 0), V(0, 0, 1), 3),
    Part.Circle(V(-4.6, -7.1, 0), V(0, 0, 1), 3.1),
    Part.Circle(V(4.4, -7.1, 0), V(0, 0, 1), 3),
], False)
sketch11.addConstraint([
    Sketcher.Constraint("Equal", 0, 2),
    Sketcher.Constraint("Equal", 2, 3),
    Sketcher.Constraint("Equal", 3, 4),
    Sketcher.Constraint("Equal", 1, 5),
    Sketcher.Constraint("Equal", 5, 6),
    Sketcher.Constraint("Equal", 6, 7),
    Sketcher.Constraint("Horizontal", 0, 3, 2, 3),
    Sketcher.Constraint("Horizontal", 2, 3, 3, 3),
    Sketcher.Constraint("Horizontal", 3, 3, 4, 3),
    Sketcher.Constraint("Horizontal", 1, 3, 5, 3),
    Sketcher.Constraint("Horizontal", 5, 3, 6, 3),
    Sketcher.Constraint("Horizontal", 6, 3, 7, 3),
    Sketcher.Constraint("Horizontal", 8, 3, 9, 3),
    Sketcher.Constraint("Vertical", 0, 3, 1, 3),
    Sketcher.Constraint("Vertical", 2, 3, 5, 3),
    Sketcher.Constraint("Vertical", 3, 3, 6, 3),
    Sketcher.Constraint("Vertical", 4, 3, 7, 3),
    Sketcher.Constraint("Vertical", 6, 3, 8, 3),
    Sketcher.Constraint("Vertical", 5, 3, 9, 3),
    Sketcher.Constraint("Diameter", 0, Q("8 mm")),
    Sketcher.Constraint("Diameter", 1, Q("6 mm")),
    Sketcher.Constraint("DistanceY", 0, 3, 1, 3, Q("8 mm")),
    Sketcher.Constraint("DistanceX", 2, 3, 0, 3, Q("9 mm")),
    Sketcher.Constraint("DistanceX", 3, 3, 2, 3, Q("9 mm")),
    Sketcher.Constraint("DistanceX", 4, 3, 3, 3, Q("9 mm")),
    Sketcher.Constraint("DistanceY", 6, 3, 8, 3, Q("8 mm")),
    Sketcher.Constraint("DistanceX", -1, 1, 0, 3, Q("13.4 mm")),
    Sketcher.Constraint("DistanceY", 0, 3, -1, 1, Q("23.1 mm")),
    Sketcher.Constraint("Diameter", 8, Q("6.21027 mm")),
    Sketcher.Constraint("Diameter", 9, Q("6.003261 mm")),
])
pocket8 = body.newObject("PartDesign::Pocket", "Pocket007")
pocket8.Profile = sketch11
pocket8.Length = 10

doc.recompute()
